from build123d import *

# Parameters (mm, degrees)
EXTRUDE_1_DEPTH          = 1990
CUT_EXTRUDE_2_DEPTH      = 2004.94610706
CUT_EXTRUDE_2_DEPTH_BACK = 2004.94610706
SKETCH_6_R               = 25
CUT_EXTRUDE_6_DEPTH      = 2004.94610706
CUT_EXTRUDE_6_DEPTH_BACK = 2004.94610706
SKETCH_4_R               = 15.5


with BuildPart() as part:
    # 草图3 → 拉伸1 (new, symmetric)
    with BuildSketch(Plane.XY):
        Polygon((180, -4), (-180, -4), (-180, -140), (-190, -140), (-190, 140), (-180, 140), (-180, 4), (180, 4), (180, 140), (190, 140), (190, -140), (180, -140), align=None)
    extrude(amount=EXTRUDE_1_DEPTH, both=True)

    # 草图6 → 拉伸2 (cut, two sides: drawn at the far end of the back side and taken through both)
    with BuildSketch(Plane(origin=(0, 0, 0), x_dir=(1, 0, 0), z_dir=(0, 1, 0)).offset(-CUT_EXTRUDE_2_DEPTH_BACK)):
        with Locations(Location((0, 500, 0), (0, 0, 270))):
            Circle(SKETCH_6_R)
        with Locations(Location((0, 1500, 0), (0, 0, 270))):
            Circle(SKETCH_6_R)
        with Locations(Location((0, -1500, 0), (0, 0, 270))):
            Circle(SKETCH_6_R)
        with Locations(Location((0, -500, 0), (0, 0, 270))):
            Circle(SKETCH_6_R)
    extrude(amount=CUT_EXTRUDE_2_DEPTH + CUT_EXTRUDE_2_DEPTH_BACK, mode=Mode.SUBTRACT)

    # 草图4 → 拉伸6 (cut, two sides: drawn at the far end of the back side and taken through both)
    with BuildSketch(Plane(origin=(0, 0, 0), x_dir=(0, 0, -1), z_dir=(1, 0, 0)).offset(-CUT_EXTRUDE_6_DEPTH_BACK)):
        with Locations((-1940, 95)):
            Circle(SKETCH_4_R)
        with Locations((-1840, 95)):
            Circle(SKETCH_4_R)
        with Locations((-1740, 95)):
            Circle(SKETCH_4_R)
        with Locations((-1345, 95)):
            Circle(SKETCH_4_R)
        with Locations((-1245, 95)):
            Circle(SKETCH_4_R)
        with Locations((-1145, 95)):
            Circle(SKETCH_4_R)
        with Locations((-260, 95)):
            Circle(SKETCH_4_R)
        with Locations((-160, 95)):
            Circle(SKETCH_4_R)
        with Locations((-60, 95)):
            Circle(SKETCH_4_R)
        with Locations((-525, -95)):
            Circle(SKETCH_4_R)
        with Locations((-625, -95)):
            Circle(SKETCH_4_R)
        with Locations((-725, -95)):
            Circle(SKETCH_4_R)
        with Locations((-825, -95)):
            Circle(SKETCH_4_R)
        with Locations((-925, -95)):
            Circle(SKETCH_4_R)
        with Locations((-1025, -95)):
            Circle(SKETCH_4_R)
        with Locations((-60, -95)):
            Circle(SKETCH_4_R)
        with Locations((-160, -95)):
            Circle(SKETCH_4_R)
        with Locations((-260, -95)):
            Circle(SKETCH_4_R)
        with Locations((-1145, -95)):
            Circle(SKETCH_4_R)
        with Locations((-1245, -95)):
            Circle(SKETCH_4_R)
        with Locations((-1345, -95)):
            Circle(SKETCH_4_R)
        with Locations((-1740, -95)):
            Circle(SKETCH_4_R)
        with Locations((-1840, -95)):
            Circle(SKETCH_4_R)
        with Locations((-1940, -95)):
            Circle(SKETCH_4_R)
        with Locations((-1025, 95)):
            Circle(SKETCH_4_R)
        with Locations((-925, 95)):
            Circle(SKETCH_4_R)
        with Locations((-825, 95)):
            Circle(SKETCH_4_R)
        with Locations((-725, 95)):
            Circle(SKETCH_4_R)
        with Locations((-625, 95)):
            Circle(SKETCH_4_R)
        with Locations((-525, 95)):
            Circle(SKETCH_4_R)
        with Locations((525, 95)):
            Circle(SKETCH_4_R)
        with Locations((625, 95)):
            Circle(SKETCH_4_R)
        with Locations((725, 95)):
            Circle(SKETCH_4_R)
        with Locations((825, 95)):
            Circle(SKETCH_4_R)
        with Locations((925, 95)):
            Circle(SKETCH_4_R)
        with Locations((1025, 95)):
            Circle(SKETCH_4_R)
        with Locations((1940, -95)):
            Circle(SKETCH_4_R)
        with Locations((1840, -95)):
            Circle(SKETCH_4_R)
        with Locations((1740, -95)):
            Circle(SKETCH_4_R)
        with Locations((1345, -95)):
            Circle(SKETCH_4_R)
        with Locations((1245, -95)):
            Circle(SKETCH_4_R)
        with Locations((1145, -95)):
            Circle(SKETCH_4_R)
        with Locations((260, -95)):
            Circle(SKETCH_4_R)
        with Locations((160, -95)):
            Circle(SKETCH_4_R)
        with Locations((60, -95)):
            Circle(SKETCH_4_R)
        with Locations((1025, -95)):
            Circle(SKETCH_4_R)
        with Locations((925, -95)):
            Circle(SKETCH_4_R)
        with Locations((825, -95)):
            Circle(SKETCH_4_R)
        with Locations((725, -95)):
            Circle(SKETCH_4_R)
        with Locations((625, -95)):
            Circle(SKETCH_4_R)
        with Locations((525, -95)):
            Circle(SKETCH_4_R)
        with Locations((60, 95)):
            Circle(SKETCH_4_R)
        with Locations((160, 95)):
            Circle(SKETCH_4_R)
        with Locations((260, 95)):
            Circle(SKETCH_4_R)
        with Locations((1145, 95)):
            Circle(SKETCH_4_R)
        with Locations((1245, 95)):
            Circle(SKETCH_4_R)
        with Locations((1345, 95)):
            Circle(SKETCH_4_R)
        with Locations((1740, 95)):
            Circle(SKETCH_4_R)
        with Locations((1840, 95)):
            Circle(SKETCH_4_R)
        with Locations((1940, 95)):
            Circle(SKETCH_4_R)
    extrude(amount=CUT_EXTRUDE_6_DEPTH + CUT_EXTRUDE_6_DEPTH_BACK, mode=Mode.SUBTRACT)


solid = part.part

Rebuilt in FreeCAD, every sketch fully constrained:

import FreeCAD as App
import Part
import Sketcher

V = App.Vector
Q = App.Units.Quantity


def add_polygon(sketch, points):
    """Adds a closed chain of lines whose ends are joined by coincident constraints."""
    first, n = sketch.GeometryCount, len(points)
    for a, b in zip(points, points[1:] + points[:1]):
        sketch.addGeometry(Part.LineSegment(App.Vector(*a, 0), App.Vector(*b, 0)), False)
    for i in range(n):
        sketch.addConstraint(Sketcher.Constraint("Coincident", first + i, 2, first + (i + 1) % n, 1))

doc = App.newDocument("Part")
body = doc.addObject("PartDesign::Body", "Body")

# Sketch on XY plane
sketch1 = doc.addObject("Sketcher::SketchObject", "Sketch")
body.addObject(sketch1)
sketch1.AttachmentSupport = (doc.XY_Plane, [""])
sketch1.MapMode = "FlatFace"
add_polygon(sketch1, [(-180, -4), (180, -4), (180, -140), (190, -140), (190, 140), (180, 140), (180, 4), (-180, 4), (-180, 140), (-190, 140), (-190, -140), (-180, -140)])  # lines 0-11
sketch1.addConstraint([
    Sketcher.Constraint("Horizontal", 0),
    Sketcher.Constraint("Vertical", 1),
    Sketcher.Constraint("Horizontal", 2),
    Sketcher.Constraint("Vertical", 3),
    Sketcher.Constraint("Horizontal", 4),
    Sketcher.Constraint("Vertical", 5),
    Sketcher.Constraint("Horizontal", 6),
    Sketcher.Constraint("Vertical", 7),
    Sketcher.Constraint("Horizontal", 8),
    Sketcher.Constraint("Vertical", 9),
    Sketcher.Constraint("Horizontal", 10),
    Sketcher.Constraint("Vertical", 11),
    Sketcher.Constraint("Symmetric", 0, 2, 6, 2, -1, 1),
    Sketcher.Constraint("Symmetric", 2, 2, 8, 2, -1, 1),
    Sketcher.Constraint("Symmetric", 4, 2, 10, 2, -1, 1),
    Sketcher.Constraint("Symmetric", 4, 2, 7, 2, -2),
    Sketcher.Constraint("DistanceX", 0, 1, 0, 2, Q("360 mm")),
    Sketcher.Constraint("DistanceX", 2, 1, 2, 2, Q("10 mm")),
    Sketcher.Constraint("DistanceY", 1, 2, 1, 1, Q("136 mm")),
    Sketcher.Constraint("DistanceY", 3, 1, 3, 2, Q("280 mm")),
])
pad1 = doc.addObject("PartDesign::Pad", "Pad")
body.addObject(pad1)
pad1.Profile = sketch1
pad1.Length = 3980
pad1.Midplane = True

# Sketch on XZ plane
sketch2 = doc.addObject("Sketcher::SketchObject", "Sketch001")
body.addObject(sketch2)
sketch2.AttachmentSupport = (doc.XZ_Plane, [""])
sketch2.MapMode = "FlatFace"
sketch2.addGeometry([
    Part.Circle(V(0, -500, 0), V(0, 0, 1), 25),
    Part.Circle(V(0, -1500, 0), V(0, 0, 1), 25),
    Part.Circle(V(0, 1500, 0), V(0, 0, 1), 25),
    Part.Circle(V(0, 500, 0), V(0, 0, 1), 25),
], False)
sketch2.addConstraint([
    Sketcher.Constraint("Equal", 0, 1),
    Sketcher.Constraint("Equal", 1, 2),
    Sketcher.Constraint("Equal", 2, 3),
    Sketcher.Constraint("Symmetric", 1, 3, 2, 3, -1, 1),
    Sketcher.Constraint("Symmetric", 0, 3, 3, 3, -1, 1),
    Sketcher.Constraint("PointOnObject", 0, 3, -2),
    Sketcher.Constraint("PointOnObject", 1, 3, -2),
    Sketcher.Constraint("Diameter", 0, Q("50 mm")),
    Sketcher.Constraint("DistanceY", 0, 3, -1, 1, Q("500 mm")),
    Sketcher.Constraint("DistanceY", 1, 3, -1, 1, Q("1500 mm")),
])
pocket1 = doc.addObject("PartDesign::Pocket", "Pocket")
body.addObject(pocket1)
pocket1.Profile = sketch2
pocket1.Type = "ThroughAll"
pocket1.Midplane = True

# Sketch on YZ plane
sketch3 = doc.addObject("Sketcher::SketchObject", "Sketch002")
body.addObject(sketch3)
sketch3.AttachmentSupport = (doc.YZ_Plane, [""])
sketch3.MapMode = "FlatFace"
sketch3.addGeometry([
    Part.Circle(V(95, 1940, 0), V(0, 0, 1), 15.5),  # 0
    Part.Circle(V(95, 1840, 0), V(0, 0, 1), 15.5),  # 1
    Part.Circle(V(95, 1740, 0), V(0, 0, 1), 15.5),  # 2
    Part.Circle(V(95, 1345, 0), V(0, 0, 1), 15.5),  # 3
    Part.Circle(V(95, 1245, 0), V(0, 0, 1), 15.5),  # 4
    Part.Circle(V(95, 1145, 0), V(0, 0, 1), 15.5),  # 5
    Part.Circle(V(95, 260, 0), V(0, 0, 1), 15.5),  # 6
    Part.Circle(V(95, 160, 0), V(0, 0, 1), 15.5),  # 7
    Part.Circle(V(95, 60, 0), V(0, 0, 1), 15.5),  # 8
    Part.Circle(V(-95, 525, 0), V(0, 0, 1), 15.5),  # 9
    Part.Circle(V(-95, 625, 0), V(0, 0, 1), 15.5),  # 10
    Part.Circle(V(-95, 725, 0), V(0, 0, 1), 15.5),  # 11
    Part.Circle(V(-95, 825, 0), V(0, 0, 1), 15.5),  # 12
    Part.Circle(V(-95, 925, 0), V(0, 0, 1), 15.5),  # 13
    Part.Circle(V(-95, 1025, 0), V(0, 0, 1), 15.5),  # 14
    Part.Circle(V(-95, 60, 0), V(0, 0, 1), 15.5),  # 15
    Part.Circle(V(-95, 160, 0), V(0, 0, 1), 15.5),  # 16
    Part.Circle(V(-95, 260, 0), V(0, 0, 1), 15.5),  # 17
    Part.Circle(V(-95, 1145, 0), V(0, 0, 1), 15.5),  # 18
    Part.Circle(V(-95, 1245, 0), V(0, 0, 1), 15.5),  # 19
    Part.Circle(V(-95, 1345, 0), V(0, 0, 1), 15.5),  # 20
    Part.Circle(V(-95, 1740, 0), V(0, 0, 1), 15.5),  # 21
    Part.Circle(V(-95, 1840, 0), V(0, 0, 1), 15.5),  # 22
    Part.Circle(V(-95, 1940, 0), V(0, 0, 1), 15.5),  # 23
    Part.Circle(V(95, 1025, 0), V(0, 0, 1), 15.5),  # 24
    Part.Circle(V(95, 925, 0), V(0, 0, 1), 15.5),  # 25
    Part.Circle(V(95, 825, 0), V(0, 0, 1), 15.5),  # 26
    Part.Circle(V(95, 725, 0), V(0, 0, 1), 15.5),  # 27
    Part.Circle(V(95, 625, 0), V(0, 0, 1), 15.5),  # 28
    Part.Circle(V(95, 525, 0), V(0, 0, 1), 15.5),  # 29
    Part.Circle(V(95, -525, 0), V(0, 0, 1), 15.5),  # 30
    Part.Circle(V(95, -625, 0), V(0, 0, 1), 15.5),  # 31
    Part.Circle(V(95, -725, 0), V(0, 0, 1), 15.5),  # 32
    Part.Circle(V(95, -825, 0), V(0, 0, 1), 15.5),  # 33
    Part.Circle(V(95, -925, 0), V(0, 0, 1), 15.5),  # 34
    Part.Circle(V(95, -1025, 0), V(0, 0, 1), 15.5),  # 35
    Part.Circle(V(-95, -1940, 0), V(0, 0, 1), 15.5),  # 36
    Part.Circle(V(-95, -1840, 0), V(0, 0, 1), 15.5),  # 37
    Part.Circle(V(-95, -1740, 0), V(0, 0, 1), 15.5),  # 38
    Part.Circle(V(-95, -1345, 0), V(0, 0, 1), 15.5),  # 39
    Part.Circle(V(-95, -1245, 0), V(0, 0, 1), 15.5),  # 40
    Part.Circle(V(-95, -1145, 0), V(0, 0, 1), 15.5),  # 41
    Part.Circle(V(-95, -260, 0), V(0, 0, 1), 15.5),  # 42
    Part.Circle(V(-95, -160, 0), V(0, 0, 1), 15.5),  # 43
    Part.Circle(V(-95, -60, 0), V(0, 0, 1), 15.5),  # 44
    Part.Circle(V(-95, -1025, 0), V(0, 0, 1), 15.5),  # 45
    Part.Circle(V(-95, -925, 0), V(0, 0, 1), 15.5),  # 46
    Part.Circle(V(-95, -825, 0), V(0, 0, 1), 15.5),  # 47
    Part.Circle(V(-95, -725, 0), V(0, 0, 1), 15.5),  # 48
    Part.Circle(V(-95, -625, 0), V(0, 0, 1), 15.5),  # 49
    Part.Circle(V(-95, -525, 0), V(0, 0, 1), 15.5),  # 50
    Part.Circle(V(95, -60, 0), V(0, 0, 1), 15.5),  # 51
    Part.Circle(V(95, -160, 0), V(0, 0, 1), 15.5),  # 52
    Part.Circle(V(95, -260, 0), V(0, 0, 1), 15.5),  # 53
    Part.Circle(V(95, -1145, 0), V(0, 0, 1), 15.5),  # 54
    Part.Circle(V(95, -1245, 0), V(0, 0, 1), 15.5),  # 55
    Part.Circle(V(95, -1345, 0), V(0, 0, 1), 15.5),  # 56
    Part.Circle(V(95, -1740, 0), V(0, 0, 1), 15.5),  # 57
    Part.Circle(V(95, -1840, 0), V(0, 0, 1), 15.5),  # 58
    Part.Circle(V(95, -1940, 0), V(0, 0, 1), 15.5),  # 59
], False)
sketch3.addConstraint([
    Sketcher.Constraint("Equal", 0, 1),
    Sketcher.Constraint("Equal", 1, 2),
    Sketcher.Constraint("Equal", 2, 3),
    Sketcher.Constraint("Equal", 3, 4),
    Sketcher.Constraint("Equal", 4, 5),
    Sketcher.Constraint("Equal", 5, 6),
    Sketcher.Constraint("Equal", 6, 7),
    Sketcher.Constraint("Equal", 7, 8),
    Sketcher.Constraint("Equal", 8, 9),
    Sketcher.Constraint("Equal", 9, 10),
    Sketcher.Constraint("Equal", 10, 11),
    Sketcher.Constraint("Equal", 11, 12),
    Sketcher.Constraint("Equal", 12, 13),
    Sketcher.Constraint("Equal", 13, 14),
    Sketcher.Constraint("Equal", 14, 15),
    Sketcher.Constraint("Equal", 15, 16),
    Sketcher.Constraint("Equal", 16, 17),
    Sketcher.Constraint("Equal", 17, 18),
    Sketcher.Constraint("Equal", 18, 19),
    Sketcher.Constraint("Equal", 19, 20),
    Sketcher.Constraint("Equal", 20, 21),
    Sketcher.Constraint("Equal", 21, 22),
    Sketcher.Constraint("Equal", 22, 23),
    Sketcher.Constraint("Equal", 23, 24),
    Sketcher.Constraint("Equal", 24, 25),
    Sketcher.Constraint("Equal", 25, 26),
    Sketcher.Constraint("Equal", 26, 27),
    Sketcher.Constraint("Equal", 27, 28),
    Sketcher.Constraint("Equal", 28, 29),
    Sketcher.Constraint("Equal", 29, 30),
    Sketcher.Constraint("Equal", 30, 31),
    Sketcher.Constraint("Equal", 31, 32),
    Sketcher.Constraint("Equal", 32, 33),
    Sketcher.Constraint("Equal", 33, 34),
    Sketcher.Constraint("Equal", 34, 35),
    Sketcher.Constraint("Equal", 35, 36),
    Sketcher.Constraint("Equal", 36, 37),
    Sketcher.Constraint("Equal", 37, 38),
    Sketcher.Constraint("Equal", 38, 39),
    Sketcher.Constraint("Equal", 39, 40),
    Sketcher.Constraint("Equal", 40, 41),
    Sketcher.Constraint("Equal", 41, 42),
    Sketcher.Constraint("Equal", 42, 43),
    Sketcher.Constraint("Equal", 43, 44),
    Sketcher.Constraint("Equal", 44, 45),
    Sketcher.Constraint("Equal", 45, 46),
    Sketcher.Constraint("Equal", 46, 47),
    Sketcher.Constraint("Equal", 47, 48),
    Sketcher.Constraint("Equal", 48, 49),
    Sketcher.Constraint("Equal", 49, 50),
    Sketcher.Constraint("Equal", 50, 51),
    Sketcher.Constraint("Equal", 51, 52),
    Sketcher.Constraint("Equal", 52, 53),
    Sketcher.Constraint("Equal", 53, 54),
    Sketcher.Constraint("Equal", 54, 55),
    Sketcher.Constraint("Equal", 55, 56),
    Sketcher.Constraint("Equal", 56, 57),
    Sketcher.Constraint("Equal", 57, 58),
    Sketcher.Constraint("Equal", 58, 59),
    Sketcher.Constraint("Symmetric", 9, 3, 30, 3, -1, 1),
    Sketcher.Constraint("Symmetric", 10, 3, 31, 3, -1, 1),
    Sketcher.Constraint("Symmetric", 11, 3, 32, 3, -1, 1),
    Sketcher.Constraint("Symmetric", 12, 3, 33, 3, -1, 1),
    Sketcher.Constraint("Symmetric", 13, 3, 34, 3, -1, 1),
    Sketcher.Constraint("Symmetric", 14, 3, 35, 3, -1, 1),
    Sketcher.Constraint("Symmetric", 0, 3, 36, 3, -1, 1),
    Sketcher.Constraint("Symmetric", 1, 3, 37, 3, -1, 1),
    Sketcher.Constraint("Symmetric", 2, 3, 38, 3, -1, 1),
    Sketcher.Constraint("Symmetric", 3, 3, 39, 3, -1, 1),
    Sketcher.Constraint("Symmetric", 4, 3, 40, 3, -1, 1),
    Sketcher.Constraint("Symmetric", 5, 3, 41, 3, -1, 1),
    Sketcher.Constraint("Symmetric", 6, 3, 42, 3, -1, 1),
    Sketcher.Constraint("Symmetric", 7, 3, 43, 3, -1, 1),
    Sketcher.Constraint("Symmetric", 8, 3, 44, 3, -1, 1),
    Sketcher.Constraint("Symmetric", 24, 3, 45, 3, -1, 1),
    Sketcher.Constraint("Symmetric", 25, 3, 46, 3, -1, 1),
    Sketcher.Constraint("Symmetric", 26, 3, 47, 3, -1, 1),
    Sketcher.Constraint("Symmetric", 27, 3, 48, 3, -1, 1),
    Sketcher.Constraint("Symmetric", 28, 3, 49, 3, -1, 1),
    Sketcher.Constraint("Symmetric", 29, 3, 50, 3, -1, 1),
    Sketcher.Constraint("Symmetric", 15, 3, 51, 3, -1, 1),
    Sketcher.Constraint("Symmetric", 16, 3, 52, 3, -1, 1),
    Sketcher.Constraint("Symmetric", 17, 3, 53, 3, -1, 1),
    Sketcher.Constraint("Symmetric", 18, 3, 54, 3, -1, 1),
    Sketcher.Constraint("Symmetric", 19, 3, 55, 3, -1, 1),
    Sketcher.Constraint("Symmetric", 20, 3, 56, 3, -1, 1),
    Sketcher.Constraint("Symmetric", 21, 3, 57, 3, -1, 1),
    Sketcher.Constraint("Symmetric", 22, 3, 58, 3, -1, 1),
    Sketcher.Constraint("Symmetric", 23, 3, 59, 3, -1, 1),
    Sketcher.Constraint("Symmetric", 8, 3, 15, 3, -2),
    Sketcher.Constraint("Symmetric", 7, 3, 16, 3, -2),
    Sketcher.Constraint("Symmetric", 6, 3, 17, 3, -2),
    Sketcher.Constraint("Symmetric", 5, 3, 18, 3, -2),
    Sketcher.Constraint("Symmetric", 4, 3, 19, 3, -2),
    Sketcher.Constraint("Symmetric", 3, 3, 20, 3, -2),
    Sketcher.Constraint("Symmetric", 2, 3, 21, 3, -2),
    Sketcher.Constraint("Symmetric", 1, 3, 22, 3, -2),
    Sketcher.Constraint("Symmetric", 0, 3, 23, 3, -2),
    Sketcher.Constraint("Symmetric", 14, 3, 24, 3, -2),
    Sketcher.Constraint("Symmetric", 13, 3, 25, 3, -2),
    Sketcher.Constraint("Symmetric", 12, 3, 26, 3, -2),
    Sketcher.Constraint("Symmetric", 11, 3, 27, 3, -2),
    Sketcher.Constraint("Symmetric", 10, 3, 28, 3, -2),
    Sketcher.Constraint("Symmetric", 9, 3, 29, 3, -2),
    Sketcher.Constraint("Vertical", 0, 3, 1, 3),
    Sketcher.Constraint("Vertical", 1, 3, 2, 3),
    Sketcher.Constraint("Vertical", 2, 3, 3, 3),
    Sketcher.Constraint("Vertical", 3, 3, 4, 3),
    Sketcher.Constraint("Vertical", 4, 3, 5, 3),
    Sketcher.Constraint("Vertical", 5, 3, 6, 3),
    Sketcher.Constraint("Vertical", 6, 3, 7, 3),
    Sketcher.Constraint("Vertical", 7, 3, 8, 3),
    Sketcher.Constraint("Vertical", 9, 3, 10, 3),
    Sketcher.Constraint("Vertical", 10, 3, 11, 3),
    Sketcher.Constraint("Vertical", 11, 3, 12, 3),
    Sketcher.Constraint("Vertical", 12, 3, 13, 3),
    Sketcher.Constraint("Vertical", 13, 3, 14, 3),
    Sketcher.Constraint("Vertical", 14, 3, 15, 3),
    Sketcher.Constraint("Diameter", 0, Q("31 mm")),
    Sketcher.Constraint("DistanceX", -1, 1, 0, 3, Q("95 mm")),
    Sketcher.Constraint("DistanceY", -1, 1, 0, 3, Q("1940 mm")),
    Sketcher.Constraint("DistanceY", -1, 1, 1, 3, Q("1840 mm")),
    Sketcher.Constraint("DistanceY", -1, 1, 2, 3, Q("1740 mm")),
    Sketcher.Constraint("DistanceY", -1, 1, 3, 3, Q("1345 mm")),
    Sketcher.Constraint("DistanceY", -1, 1, 4, 3, Q("1245 mm")),
    Sketcher.Constraint("DistanceY", -1, 1, 5, 3, Q("1145 mm")),
    Sketcher.Constraint("DistanceY", -1, 1, 6, 3, Q("260 mm")),
    Sketcher.Constraint("DistanceY", -1, 1, 7, 3, Q("160 mm")),
    Sketcher.Constraint("DistanceY", -1, 1, 8, 3, Q("60 mm")),
    Sketcher.Constraint("DistanceY", -1, 1, 9, 3, Q("525 mm")),
    Sketcher.Constraint("DistanceY", -1, 1, 10, 3, Q("625 mm")),
    Sketcher.Constraint("DistanceY", -1, 1, 11, 3, Q("725 mm")),
    Sketcher.Constraint("DistanceY", -1, 1, 12, 3, Q("825 mm")),
    Sketcher.Constraint("DistanceY", -1, 1, 13, 3, Q("925 mm")),
    Sketcher.Constraint("DistanceY", -1, 1, 14, 3, Q("1025 mm")),
])
pocket2 = doc.addObject("PartDesign::Pocket", "Pocket001")
body.addObject(pocket2)
pocket2.Profile = sketch3
pocket2.Type = "ThroughAll"
pocket2.Midplane = True

doc.recompute()
